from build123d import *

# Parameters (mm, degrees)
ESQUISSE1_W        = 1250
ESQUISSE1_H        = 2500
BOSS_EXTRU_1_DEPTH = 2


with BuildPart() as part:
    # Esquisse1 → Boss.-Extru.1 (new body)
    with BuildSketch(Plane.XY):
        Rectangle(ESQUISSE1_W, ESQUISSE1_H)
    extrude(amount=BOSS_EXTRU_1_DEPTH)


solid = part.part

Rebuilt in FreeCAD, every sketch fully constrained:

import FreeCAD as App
import Part
import Sketcher
from FreeCAD import Vector

doc = App.newDocument("Part")
params = doc.addObject("Spreadsheet::Sheet", "Params")
for row, (alias, value) in enumerate([
    ("sketch1_width", "1250 mm"),
    ("sketch1_height", "2500 mm"),
    ("pad1_length", "2 mm"),
], start=1):
    params.set(f"A{row}", alias)
    params.set(f"B{row}", "=" + value)
    params.setAlias(f"B{row}", alias)

body = doc.addObject("PartDesign::Body", "Body")

# Sketch on XY plane
sketch1 = body.newObject("Sketcher::SketchObject", "Sketch")
sketch1.AttachmentSupport = (doc.getObject("XY_Plane"), [""])
sketch1.MapMode = "FlatFace"
sketch1.addGeometry([
    Part.LineSegment(Vector(-625, 1250, 0), Vector(-625, -1250, 0)),
    Part.LineSegment(Vector(-625, -1250, 0), Vector(625, -1250, 0)),
    Part.LineSegment(Vector(625, -1250, 0), Vector(625, 1250, 0)),
    Part.LineSegment(Vector(625, 1250, 0), Vector(-625, 1250, 0)),
], False)
sketch1.addConstraint([
    Sketcher.Constraint("Coincident", 0, 2, 1, 1),
    Sketcher.Constraint("Coincident", 1, 2, 2, 1),
    Sketcher.Constraint("Coincident", 2, 2, 3, 1),
    Sketcher.Constraint("Coincident", 3, 2, 0, 1),
    Sketcher.Constraint("Vertical", 0),
    Sketcher.Constraint("Horizontal", 1),
    Sketcher.Constraint("Vertical", 2),
    Sketcher.Constraint("Horizontal", 3),
    Sketcher.Constraint("Symmetric", 0, 2, 2, 2, -1, 1),
    Sketcher.Constraint("DistanceX", 1, 1, 1, 2, 1250.0),
    Sketcher.Constraint("DistanceY", 0, 2, 0, 1, 2500.0),
])
sketch1.setExpression("Constraints[9]", "Params.sketch1_width")
sketch1.setExpression("Constraints[10]", "Params.sketch1_height")
pad1 = body.newObject("PartDesign::Pad", "Pad")
pad1.Profile = sketch1
pad1.setExpression("Length", "Params.pad1_length")

doc.recompute()
